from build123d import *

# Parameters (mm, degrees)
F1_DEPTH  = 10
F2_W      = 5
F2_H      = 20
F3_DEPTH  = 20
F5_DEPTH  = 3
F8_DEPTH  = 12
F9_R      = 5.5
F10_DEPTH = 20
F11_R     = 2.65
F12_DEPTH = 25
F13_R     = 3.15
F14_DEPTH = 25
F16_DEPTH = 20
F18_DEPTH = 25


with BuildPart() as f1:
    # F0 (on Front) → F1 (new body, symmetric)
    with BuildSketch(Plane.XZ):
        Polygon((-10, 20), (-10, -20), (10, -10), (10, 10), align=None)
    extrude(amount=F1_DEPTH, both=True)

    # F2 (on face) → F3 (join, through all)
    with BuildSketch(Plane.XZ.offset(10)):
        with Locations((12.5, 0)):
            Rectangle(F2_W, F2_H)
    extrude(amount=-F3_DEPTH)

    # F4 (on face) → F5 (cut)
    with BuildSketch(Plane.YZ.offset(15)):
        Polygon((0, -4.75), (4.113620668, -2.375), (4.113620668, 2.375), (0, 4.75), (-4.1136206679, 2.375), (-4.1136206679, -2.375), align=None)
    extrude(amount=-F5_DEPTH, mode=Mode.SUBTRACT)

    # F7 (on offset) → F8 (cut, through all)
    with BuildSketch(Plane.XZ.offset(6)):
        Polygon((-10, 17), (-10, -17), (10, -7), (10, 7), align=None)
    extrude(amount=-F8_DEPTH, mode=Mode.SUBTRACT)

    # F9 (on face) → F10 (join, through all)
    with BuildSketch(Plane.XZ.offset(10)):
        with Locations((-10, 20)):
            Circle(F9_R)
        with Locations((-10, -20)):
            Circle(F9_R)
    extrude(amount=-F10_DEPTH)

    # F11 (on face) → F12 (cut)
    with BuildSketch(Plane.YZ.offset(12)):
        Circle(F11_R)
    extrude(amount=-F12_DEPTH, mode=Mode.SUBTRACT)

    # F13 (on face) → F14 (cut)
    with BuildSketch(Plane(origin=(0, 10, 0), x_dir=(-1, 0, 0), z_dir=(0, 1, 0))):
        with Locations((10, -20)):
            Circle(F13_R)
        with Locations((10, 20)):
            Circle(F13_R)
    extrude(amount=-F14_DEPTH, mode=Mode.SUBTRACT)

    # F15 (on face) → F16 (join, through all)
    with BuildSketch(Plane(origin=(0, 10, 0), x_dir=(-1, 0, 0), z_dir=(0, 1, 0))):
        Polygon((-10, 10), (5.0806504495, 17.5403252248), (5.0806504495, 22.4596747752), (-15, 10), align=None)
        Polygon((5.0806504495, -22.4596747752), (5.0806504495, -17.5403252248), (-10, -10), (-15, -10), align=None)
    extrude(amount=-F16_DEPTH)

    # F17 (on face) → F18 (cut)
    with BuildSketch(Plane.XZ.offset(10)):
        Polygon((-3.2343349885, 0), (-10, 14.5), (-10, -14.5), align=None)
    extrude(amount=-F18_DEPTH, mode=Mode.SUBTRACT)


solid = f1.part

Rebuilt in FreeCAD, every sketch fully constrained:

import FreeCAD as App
import Part
import Sketcher
Q = App.Units.Quantity

doc = App.newDocument("Part")
body = doc.addObject("PartDesign::Body", "Body")

sketch1 = doc.addObject("Sketcher::SketchObject", "Sketch")
body.addObject(sketch1)
sketch1.AttachmentSupport = (doc.XZ_Plane, [""])
sketch1.MapMode = "FlatFace"
sketch1.addGeometry(Part.LineSegment(App.Vector(-10, 20, 0), App.Vector(-10, -20, 0)), False)
sketch1.addGeometry(Part.LineSegment(App.Vector(-10, -20, 0), App.Vector(10, -10, 0)), False)
sketch1.addGeometry(Part.LineSegment(App.Vector(10, -10, 0), App.Vector(10, 10, 0)), False)
sketch1.addGeometry(Part.LineSegment(App.Vector(10, 10, 0), App.Vector(-10, 20, 0)), False)
sketch1.addConstraint(Sketcher.Constraint("Coincident", 0, 2, 1, 1))
sketch1.addConstraint(Sketcher.Constraint("Coincident", 1, 2, 2, 1))
sketch1.addConstraint(Sketcher.Constraint("Coincident", 2, 2, 3, 1))
sketch1.addConstraint(Sketcher.Constraint("Coincident", 3, 2, 0, 1))
sketch1.addConstraint(Sketcher.Constraint("Vertical", 0))
sketch1.addConstraint(Sketcher.Constraint("Vertical", 2))
sketch1.addConstraint(Sketcher.Constraint("Equal", 1, 3))
sketch1.addConstraint(Sketcher.Constraint("DistanceY", 0, 2, 0, 1, Q("40 mm")))
sketch1.addConstraint(Sketcher.Constraint("DistanceY", 2, 1, 2, 2, Q("20 mm")))
sketch1.addConstraint(Sketcher.Constraint("DistanceX", 0, 2, -1, 1, Q("10 mm")))
sketch1.addConstraint(Sketcher.Constraint("DistanceY", 0, 2, -1, 1, Q("20 mm")))
sketch1.addConstraint(Sketcher.Constraint("DistanceX", -1, 1, 1, 2, Q("10 mm")))
pad1 = doc.addObject("PartDesign::Pad", "Pad")
body.addObject(pad1)
pad1.Profile = sketch1
pad1.Length = 20
pad1.Midplane = True

sketch2 = doc.addObject("Sketcher::SketchObject", "Sketch001")
body.addObject(sketch2)
sketch2.AttachmentSupport = (doc.XZ_Plane, [""])
sketch2.MapMode = "FlatFace"
sketch2.AttachmentOffset = App.Placement(App.Vector(0, 0, 10), App.Rotation())
sketch2.addGeometry(Part.LineSegment(App.Vector(10, 10, 0), App.Vector(10, -10, 0)), False)
sketch2.addGeometry(Part.LineSegment(App.Vector(10, -10, 0), App.Vector(15, -10, 0)), False)
sketch2.addGeometry(Part.LineSegment(App.Vector(15, -10, 0), App.Vector(15, 10, 0)), False)
sketch2.addGeometry(Part.LineSegment(App.Vector(15, 10, 0), App.Vector(10, 10, 0)), False)
sketch2.addConstraint(Sketcher.Constraint("Coincident", 0, 2, 1, 1))
sketch2.addConstraint(Sketcher.Constraint("Coincident", 1, 2, 2, 1))
sketch2.addConstraint(Sketcher.Constraint("Coincident", 2, 2, 3, 1))
sketch2.addConstraint(Sketcher.Constraint("Coincident", 3, 2, 0, 1))
sketch2.addConstraint(Sketcher.Constraint("Vertical", 0))
sketch2.addConstraint(Sketcher.Constraint("Horizontal", 1))
sketch2.addConstraint(Sketcher.Constraint("Vertical", 2))
sketch2.addConstraint(Sketcher.Constraint("Horizontal", 3))
sketch2.addConstraint(Sketcher.Constraint("DistanceX", 1, 1, 1, 2, Q("5 mm")))
sketch2.addConstraint(Sketcher.Constraint("DistanceY", 0, 2, 0, 1, Q("20 mm")))
sketch2.addConstraint(Sketcher.Constraint("DistanceX", -1, 1, 0, 2, Q("10 mm")))
sketch2.addConstraint(Sketcher.Constraint("DistanceY", 0, 2, -1, 1, Q("10 mm")))
pad2 = doc.addObject("PartDesign::Pad", "Pad001")
body.addObject(pad2)
pad2.Profile = sketch2
pad2.Length = 20
pad2.Reversed = True

sketch3 = doc.addObject("Sketcher::SketchObject", "Sketch002")
body.addObject(sketch3)
sketch3.AttachmentSupport = (doc.YZ_Plane, [""])
sketch3.MapMode = "FlatFace"
sketch3.AttachmentOffset = App.Placement(App.Vector(0, 0, 15), App.Rotation())
sketch3.addGeometry(Part.LineSegment(App.Vector(0, -4.8, 0), App.Vector(4.1, -2.4, 0)), False)
sketch3.addGeometry(Part.LineSegment(App.Vector(4.1, -2.4, 0), App.Vector(4.1, 2.4, 0)), False)
sketch3.addGeometry(Part.LineSegment(App.Vector(4.1, 2.4, 0), App.Vector(0, 4.8, 0)), False)
sketch3.addGeometry(Part.LineSegment(App.Vector(0, 4.8, 0), App.Vector(-4.1, 2.4, 0)), False)
sketch3.addGeometry(Part.LineSegment(App.Vector(-4.1, 2.4, 0), App.Vector(-4.1, -2.4, 0)), False)
sketch3.addGeometry(Part.LineSegment(App.Vector(-4.1, -2.4, 0), App.Vector(0, -4.8, 0)), False)
sketch3.addConstraint(Sketcher.Constraint("Coincident", 0, 2, 1, 1))
sketch3.addConstraint(Sketcher.Constraint("Coincident", 1, 2, 2, 1))
sketch3.addConstraint(Sketcher.Constraint("Coincident", 2, 2, 3, 1))
sketch3.addConstraint(Sketcher.Constraint("Coincident", 3, 2, 4, 1))
sketch3.addConstraint(Sketcher.Constraint("Coincident", 4, 2, 5, 1))
sketch3.addConstraint(Sketcher.Constraint("Coincident", 5, 2, 0, 1))
sketch3.addConstraint(Sketcher.Constraint("Vertical", 1))
sketch3.addConstraint(Sketcher.Constraint("Vertical", 4))
sketch3.addConstraint(Sketcher.Constraint("Symmetric", 0, 2, 3, 2, -1, 1))
sketch3.addConstraint(Sketcher.Constraint("Symmetric", 2, 2, 5, 2, -1, 1))
sketch3.addConstraint(Sketcher.Constraint("PointOnObject", 2, 2, -2))
sketch3.addConstraint(Sketcher.Constraint("Parallel", 2, 5))
sketch3.addConstraint(Sketcher.Constraint("Horizontal", 1, 2, 3, 2))
sketch3.addConstraint(Sketcher.Constraint("Angle", 0, Q("30 deg")))
sketch3.addConstraint(Sketcher.Constraint("DistanceY", 1, 1, 1, 2, Q("4.75 mm")))
sketch3.addConstraint(Sketcher.Constraint("DistanceY", 5, 2, 2, 2, Q("9.5 mm")))
pocket1 = doc.addObject("PartDesign::Pocket", "Pocket")
body.addObject(pocket1)
pocket1.Profile = sketch3
pocket1.Length = 3

sketch4 = doc.addObject("Sketcher::SketchObject", "Sketch003")
body.addObject(sketch4)
sketch4.AttachmentSupport = (doc.XZ_Plane, [""])
sketch4.MapMode = "FlatFace"
sketch4.AttachmentOffset = App.Placement(App.Vector(0, 0, 6), App.Rotation())
sketch4.addGeometry(Part.LineSegment(App.Vector(-10, 17, 0), App.Vector(-10, -17, 0)), False)
sketch4.addGeometry(Part.LineSegment(App.Vector(-10, -17, 0), App.Vector(10, -7, 0)), False)
sketch4.addGeometry(Part.LineSegment(App.Vector(10, -7, 0), App.Vector(10, 7, 0)), False)
sketch4.addGeometry(Part.LineSegment(App.Vector(10, 7, 0), App.Vector(-10, 17, 0)), False)
sketch4.addConstraint(Sketcher.Constraint("Coincident", 0, 2, 1, 1))
sketch4.addConstraint(Sketcher.Constraint("Coincident", 1, 2, 2, 1))
sketch4.addConstraint(Sketcher.Constraint("Coincident", 2, 2, 3, 1))
sketch4.addConstraint(Sketcher.Constraint("Coincident", 3, 2, 0, 1))
sketch4.addConstraint(Sketcher.Constraint("Vertical", 0))
sketch4.addConstraint(Sketcher.Constraint("Vertical", 2))
sketch4.addConstraint(Sketcher.Constraint("Equal", 1, 3))
sketch4.addConstraint(Sketcher.Constraint("DistanceY", 0, 2, 0, 1, Q("34 mm")))
sketch4.addConstraint(Sketcher.Constraint("DistanceY", 2, 1, 2, 2, Q("14 mm")))
sketch4.addConstraint(Sketcher.Constraint("DistanceX", 0, 2, -1, 1, Q("10 mm")))
sketch4.addConstraint(Sketcher.Constraint("DistanceY", 0, 2, -1, 1, Q("17 mm")))
sketch4.addConstraint(Sketcher.Constraint("DistanceX", -1, 1, 1, 2, Q("10 mm")))
pocket2 = doc.addObject("PartDesign::Pocket", "Pocket001")
body.addObject(pocket2)
pocket2.Profile = sketch4
pocket2.Length = 12

sketch5 = doc.addObject("Sketcher::SketchObject", "Sketch004")
body.addObject(sketch5)
sketch5.AttachmentSupport = (doc.XZ_Plane, [""])
sketch5.MapMode = "FlatFace"
sketch5.AttachmentOffset = App.Placement(App.Vector(0, 0, 10), App.Rotation())
sketch5.addGeometry(Part.Circle(App.Vector(-10, 20, 0), App.Vector(0, 0, 1), 6), False)
sketch5.addGeometry(Part.Circle(App.Vector(-10, -20, 0), App.Vector(0, 0, 1), 6), False)
sketch5.addConstraint(Sketcher.Constraint("Equal", 0, 1))
sketch5.addConstraint(Sketcher.Constraint("Symmetric", 0, 3, 1, 3, -1))
sketch5.addConstraint(Sketcher.Constraint("Diameter", 0, Q("11 mm")))
sketch5.addConstraint(Sketcher.Constraint("DistanceX", 0, 3, -1, 1, Q("10 mm")))
sketch5.addConstraint(Sketcher.Constraint("DistanceY", -1, 1, 0, 3, Q("20 mm")))
pad3 = doc.addObject("PartDesign::Pad", "Pad002")
body.addObject(pad3)
pad3.Profile = sketch5
pad3.Type = "UpToLast"
pad3.Reversed = True

sketch6 = doc.addObject("Sketcher::SketchObject", "Sketch005")
body.addObject(sketch6)
sketch6.AttachmentSupport = (doc.YZ_Plane, [""])
sketch6.MapMode = "FlatFace"
sketch6.AttachmentOffset = App.Placement(App.Vector(0, 0, 12), App.Rotation())
sketch6.addGeometry(Part.Circle(App.Vector(0, 0, 0), App.Vector(0, 0, 1), 2.6), False)
sketch6.addConstraint(Sketcher.Constraint("Coincident", 0, 3, -1, 1))
sketch6.addConstraint(Sketcher.Constraint("Diameter", 0, Q("5.3 mm")))
pocket3 = doc.addObject("PartDesign::Pocket", "Pocket002")
body.addObject(pocket3)
pocket3.Profile = sketch6
pocket3.Length = 25

sketch7 = doc.addObject("Sketcher::SketchObject", "Sketch006")
body.addObject(sketch7)
sketch7.AttachmentSupport = (doc.XZ_Plane, [""])
sketch7.MapMode = "FlatFace"
sketch7.AttachmentOffset = App.Placement(App.Vector(0, 0, -10), App.Rotation())
sketch7.addGeometry(Part.Circle(App.Vector(-10, -20, 0), App.Vector(0, 0, 1), 3.1), False)
sketch7.addGeometry(Part.Circle(App.Vector(-10, 20, 0), App.Vector(0, 0, 1), 3.1), False)
sketch7.addConstraint(Sketcher.Constraint("Equal", 0, 1))
sketch7.addConstraint(Sketcher.Constraint("Symmetric", 0, 3, 1, 3, -1))
sketch7.addConstraint(Sketcher.Constraint("Diameter", 0, Q("6.3 mm")))
sketch7.addConstraint(Sketcher.Constraint("DistanceX", 0, 3, -1, 1, Q("10 mm")))
sketch7.addConstraint(Sketcher.Constraint("DistanceY", 0, 3, -1, 1, Q("20 mm")))
pocket4 = doc.addObject("PartDesign::Pocket", "Pocket003")
body.addObject(pocket4)
pocket4.Profile = sketch7
pocket4.Length = 25
pocket4.Reversed = True

sketch8 = doc.addObject("Sketcher::SketchObject", "Sketch007")
body.addObject(sketch8)
sketch8.AttachmentSupport = (doc.XZ_Plane, [""])
sketch8.MapMode = "FlatFace"
sketch8.AttachmentOffset = App.Placement(App.Vector(0, 0, -10), App.Rotation())
sketch8.addGeometry(Part.LineSegment(App.Vector(10, 10, 0), App.Vector(-5.1, 17.5, 0)), False)
sketch8.addGeometry(Part.LineSegment(App.Vector(-5.1, 17.5, 0), App.Vector(-5.1, 22.5, 0)), False)
sketch8.addGeometry(Part.LineSegment(App.Vector(-5.1, 22.5, 0), App.Vector(15, 10, 0)), False)
sketch8.addGeometry(Part.LineSegment(App.Vector(15, 10, 0), App.Vector(10, 10, 0)), False)
sketch8.addGeometry(Part.LineSegment(App.Vector(-5.1, -22.5, 0), App.Vector(-5.1, -17.5, 0)), False)
sketch8.addGeometry(Part.LineSegment(App.Vector(-5.1, -17.5, 0), App.Vector(10, -10, 0)), False)
sketch8.addGeometry(Part.LineSegment(App.Vector(10, -10, 0), App.Vector(15, -10, 0)), False)
sketch8.addGeometry(Part.LineSegment(App.Vector(15, -10, 0), App.Vector(-5.1, -22.5, 0)), False)
sketch8.addConstraint(Sketcher.Constraint("Coincident", 0, 2, 1, 1))
sketch8.addConstraint(Sketcher.Constraint("Coincident", 1, 2, 2, 1))
sketch8.addConstraint(Sketcher.Constraint("Coincident", 2, 2, 3, 1))
sketch8.addConstraint(Sketcher.Constraint("Coincident", 3, 2, 0, 1))
sketch8.addConstraint(Sketcher.Constraint("Coincident", 4, 2, 5, 1))
sketch8.addConstraint(Sketcher.Constraint("Coincident", 5, 2, 6, 1))
sketch8.addConstraint(Sketcher.Constraint("Coincident", 6, 2, 7, 1))
sketch8.addConstraint(Sketcher.Constraint("Coincident", 7, 2, 4, 1))
sketch8.addConstraint(Sketcher.Constraint("Vertical", 1))
sketch8.addConstraint(Sketcher.Constraint("Horizontal", 3))
sketch8.addConstraint(Sketcher.Constraint("Vertical", 4))
sketch8.addConstraint(Sketcher.Constraint("Horizontal", 6))
sketch8.addConstraint(Sketcher.Constraint("Symmetric", 0, 2, 4, 2, -1))
sketch8.addConstraint(Sketcher.Constraint("Symmetric", 3, 2, 5, 2, -1))
sketch8.addConstraint(Sketcher.Constraint("Vertical", 2, 2, 6, 2))
sketch8.addConstraint(Sketcher.Constraint("Equal", 1, 4))
sketch8.addConstraint(Sketcher.Constraint("DistanceX", 3, 2, 3, 1, Q("5 mm")))
sketch8.addConstraint(Sketcher.Constraint("DistanceX", -1, 1, 2, 2, Q("15 mm")))
sketch8.addConstraint(Sketcher.Constraint("DistanceY", -1, 1, 2, 2, Q("10 mm")))
sketch8.addConstraint(Sketcher.Constraint("DistanceY", 4, 2, 1, 2, Q("40 mm")))
sketch8.addConstraint(Sketcher.Constraint("DistanceY", 1, 1, 1, 2, Q("4.91935 mm")))
sketch8.addConstraint(Sketcher.Constraint("Distance", 0, Q("16.86068 mm")))
pad4 = doc.addObject("PartDesign::Pad", "Pad003")
body.addObject(pad4)
pad4.Profile = sketch8
pad4.Type = "UpToLast"

sketch9 = doc.addObject("Sketcher::SketchObject", "Sketch008")
body.addObject(sketch9)
sketch9.AttachmentSupport = (doc.XZ_Plane, [""])
sketch9.MapMode = "FlatFace"
sketch9.AttachmentOffset = App.Placement(App.Vector(0, 0, 10), App.Rotation())
sketch9.addGeometry(Part.LineSegment(App.Vector(-3, 0, 0), App.Vector(-10, 14, 0)), False)
sketch9.addGeometry(Part.LineSegment(App.Vector(-10, 14, 0), App.Vector(-10, -14, 0)), False)
sketch9.addGeometry(Part.LineSegment(App.Vector(-10, -14, 0), App.Vector(-3, 0, 0)), False)
sketch9.addConstraint(Sketcher.Constraint("Coincident", 0, 2, 1, 1))
sketch9.addConstraint(Sketcher.Constraint("Coincident", 1, 2, 2, 1))
sketch9.addConstraint(Sketcher.Constraint("Coincident", 2, 2, 0, 1))
sketch9.addConstraint(Sketcher.Constraint("Vertical", 1))
sketch9.addConstraint(Sketcher.Constraint("PointOnObject", 2, 2, -1))
sketch9.addConstraint(Sketcher.Constraint("Equal", 0, 2))
sketch9.addConstraint(Sketcher.Constraint("DistanceY", 1, 2, 1, 1, Q("29 mm")))
sketch9.addConstraint(Sketcher.Constraint("DistanceX", 0, 2, -1, 1, Q("10 mm")))
sketch9.addConstraint(Sketcher.Constraint("Distance", 0, Q("16.000757 mm")))
pocket5 = doc.addObject("PartDesign::Pocket", "Pocket004")
body.addObject(pocket5)
pocket5.Profile = sketch9
pocket5.Length = 25

doc.recompute()
